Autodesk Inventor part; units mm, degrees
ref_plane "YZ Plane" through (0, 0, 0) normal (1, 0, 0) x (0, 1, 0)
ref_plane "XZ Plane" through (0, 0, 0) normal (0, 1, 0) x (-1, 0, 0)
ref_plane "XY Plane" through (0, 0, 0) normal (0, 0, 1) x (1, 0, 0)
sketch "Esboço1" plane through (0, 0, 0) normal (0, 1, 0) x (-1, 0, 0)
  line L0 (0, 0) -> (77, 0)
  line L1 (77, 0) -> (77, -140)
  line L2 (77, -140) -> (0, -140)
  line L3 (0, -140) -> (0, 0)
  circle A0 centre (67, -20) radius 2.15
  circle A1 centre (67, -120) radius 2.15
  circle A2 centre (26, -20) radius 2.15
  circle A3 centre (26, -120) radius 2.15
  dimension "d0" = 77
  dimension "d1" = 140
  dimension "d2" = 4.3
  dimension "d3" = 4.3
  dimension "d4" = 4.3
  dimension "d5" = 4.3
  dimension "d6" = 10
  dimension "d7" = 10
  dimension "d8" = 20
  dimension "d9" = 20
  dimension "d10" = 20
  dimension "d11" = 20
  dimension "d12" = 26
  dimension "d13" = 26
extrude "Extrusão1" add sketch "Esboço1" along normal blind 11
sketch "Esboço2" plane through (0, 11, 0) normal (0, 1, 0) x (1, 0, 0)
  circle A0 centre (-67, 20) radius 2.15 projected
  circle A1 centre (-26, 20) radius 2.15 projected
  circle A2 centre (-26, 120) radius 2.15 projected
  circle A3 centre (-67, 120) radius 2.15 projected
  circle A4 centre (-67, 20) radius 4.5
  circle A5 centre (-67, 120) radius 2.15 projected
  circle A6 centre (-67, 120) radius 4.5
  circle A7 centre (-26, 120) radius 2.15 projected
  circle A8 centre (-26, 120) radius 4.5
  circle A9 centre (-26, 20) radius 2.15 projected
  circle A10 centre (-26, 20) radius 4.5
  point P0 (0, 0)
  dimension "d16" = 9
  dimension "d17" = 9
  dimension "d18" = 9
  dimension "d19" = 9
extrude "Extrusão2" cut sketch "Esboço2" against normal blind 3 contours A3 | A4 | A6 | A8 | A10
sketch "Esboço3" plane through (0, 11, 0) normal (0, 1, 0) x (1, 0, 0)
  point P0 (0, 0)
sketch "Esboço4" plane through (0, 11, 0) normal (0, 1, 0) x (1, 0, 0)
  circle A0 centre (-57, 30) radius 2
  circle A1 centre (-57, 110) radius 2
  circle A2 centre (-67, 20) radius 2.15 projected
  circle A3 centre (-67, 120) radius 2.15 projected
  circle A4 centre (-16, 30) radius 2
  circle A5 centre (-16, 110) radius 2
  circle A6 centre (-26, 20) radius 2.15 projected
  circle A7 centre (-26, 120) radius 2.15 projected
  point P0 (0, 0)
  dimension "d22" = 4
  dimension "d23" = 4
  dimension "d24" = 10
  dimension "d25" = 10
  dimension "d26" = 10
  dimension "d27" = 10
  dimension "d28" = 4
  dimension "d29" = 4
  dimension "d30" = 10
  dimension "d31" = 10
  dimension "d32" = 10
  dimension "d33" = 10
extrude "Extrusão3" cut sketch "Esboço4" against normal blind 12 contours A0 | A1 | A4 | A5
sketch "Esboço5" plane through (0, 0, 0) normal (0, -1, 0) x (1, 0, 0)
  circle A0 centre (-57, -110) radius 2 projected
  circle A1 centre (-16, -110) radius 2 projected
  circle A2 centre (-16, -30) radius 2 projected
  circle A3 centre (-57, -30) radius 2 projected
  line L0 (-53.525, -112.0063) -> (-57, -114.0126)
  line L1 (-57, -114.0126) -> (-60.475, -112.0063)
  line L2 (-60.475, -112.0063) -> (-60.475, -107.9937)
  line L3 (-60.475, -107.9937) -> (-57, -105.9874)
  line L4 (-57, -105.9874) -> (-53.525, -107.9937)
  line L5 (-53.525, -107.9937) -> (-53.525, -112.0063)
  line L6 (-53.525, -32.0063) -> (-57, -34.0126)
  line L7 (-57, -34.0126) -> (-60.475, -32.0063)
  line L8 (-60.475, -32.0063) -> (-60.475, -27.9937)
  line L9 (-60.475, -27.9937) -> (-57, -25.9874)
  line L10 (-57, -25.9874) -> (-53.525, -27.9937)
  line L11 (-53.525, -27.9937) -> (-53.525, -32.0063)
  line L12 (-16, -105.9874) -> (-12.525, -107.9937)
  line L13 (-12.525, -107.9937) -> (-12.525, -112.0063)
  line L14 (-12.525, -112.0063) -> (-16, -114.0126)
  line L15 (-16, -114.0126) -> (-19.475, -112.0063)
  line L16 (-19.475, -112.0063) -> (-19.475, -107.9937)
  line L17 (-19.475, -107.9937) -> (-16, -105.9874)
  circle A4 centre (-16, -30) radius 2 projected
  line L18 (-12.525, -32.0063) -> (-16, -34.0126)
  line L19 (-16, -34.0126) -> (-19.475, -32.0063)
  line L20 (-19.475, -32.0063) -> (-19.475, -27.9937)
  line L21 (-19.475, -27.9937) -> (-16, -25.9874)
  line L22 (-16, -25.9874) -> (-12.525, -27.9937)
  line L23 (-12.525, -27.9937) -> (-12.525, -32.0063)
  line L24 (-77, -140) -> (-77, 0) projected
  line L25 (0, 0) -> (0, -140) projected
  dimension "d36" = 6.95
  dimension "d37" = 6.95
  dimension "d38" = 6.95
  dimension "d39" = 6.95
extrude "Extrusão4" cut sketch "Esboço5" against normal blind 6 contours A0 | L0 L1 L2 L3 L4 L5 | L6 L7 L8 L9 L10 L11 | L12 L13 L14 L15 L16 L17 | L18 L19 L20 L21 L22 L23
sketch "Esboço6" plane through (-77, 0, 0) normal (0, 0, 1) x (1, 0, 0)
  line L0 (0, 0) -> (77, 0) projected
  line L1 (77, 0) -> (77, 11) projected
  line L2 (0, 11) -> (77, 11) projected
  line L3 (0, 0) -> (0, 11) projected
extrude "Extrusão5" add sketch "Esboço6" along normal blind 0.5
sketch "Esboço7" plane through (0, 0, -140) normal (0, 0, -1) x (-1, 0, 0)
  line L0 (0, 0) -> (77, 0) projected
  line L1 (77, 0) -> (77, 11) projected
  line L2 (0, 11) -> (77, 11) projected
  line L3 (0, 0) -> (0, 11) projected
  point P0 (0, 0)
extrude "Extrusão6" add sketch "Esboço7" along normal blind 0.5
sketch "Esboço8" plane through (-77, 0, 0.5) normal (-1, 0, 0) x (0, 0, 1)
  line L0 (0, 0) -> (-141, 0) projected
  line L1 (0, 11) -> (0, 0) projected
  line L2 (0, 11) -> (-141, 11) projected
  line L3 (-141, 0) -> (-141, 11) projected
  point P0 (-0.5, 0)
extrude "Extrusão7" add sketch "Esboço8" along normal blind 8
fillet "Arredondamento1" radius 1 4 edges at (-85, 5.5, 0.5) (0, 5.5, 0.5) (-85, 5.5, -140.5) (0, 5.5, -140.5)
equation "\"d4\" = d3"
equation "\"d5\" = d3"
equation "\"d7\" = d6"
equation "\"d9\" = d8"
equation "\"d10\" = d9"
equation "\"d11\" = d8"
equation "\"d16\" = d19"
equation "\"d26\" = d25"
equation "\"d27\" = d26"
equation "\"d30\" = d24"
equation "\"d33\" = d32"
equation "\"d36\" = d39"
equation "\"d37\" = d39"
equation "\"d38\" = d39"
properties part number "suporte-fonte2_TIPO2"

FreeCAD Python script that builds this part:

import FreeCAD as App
import Part
import Sketcher
from FreeCAD import Vector
Q = App.Units.Quantity


def edges_at(feature, points):
    """Names of the edges that pass closest to the given points."""
    edges = feature.Shape.Edges
    near = lambda p: min(range(len(edges)), key=lambda i: edges[i].distToShape(Part.Vertex(*p))[0])
    return sorted({f"Edge{near(p) + 1}" for p in points})

doc = App.newDocument("Part")
body = doc.addObject("PartDesign::Body", "Body")

sketch1 = body.newObject("Sketcher::SketchObject", "Sketch")
sketch1.AttachmentSupport = (doc.getObject("XZ_Plane"), [""])
sketch1.MapMode = "FlatFace"
sketch1.addGeometry([
    Part.LineSegment(Vector(-77, 0, 0), Vector(0, 0, 0)),
    Part.LineSegment(Vector(0, 0, 0), Vector(0, -140, 0)),
    Part.LineSegment(Vector(0, -140, 0), Vector(-77, -140, 0)),
    Part.LineSegment(Vector(-77, -140, 0), Vector(-77, 0, 0)),
    Part.Circle(Vector(-26, -120, 0), Vector(0, 0, 1), 2.15),
    Part.Circle(Vector(-67, -120, 0), Vector(0, 0, 1), 2.15),
    Part.Circle(Vector(-26, -20, 0), Vector(0, 0, 1), 2.15),
    Part.Circle(Vector(-67, -20, 0), Vector(0, 0, 1), 2.15),
], False)
sketch1.addConstraint([
    Sketcher.Constraint("Coincident", 0, 2, 1, 1),
    Sketcher.Constraint("Coincident", 1, 2, 2, 1),
    Sketcher.Constraint("Coincident", 2, 2, 3, 1),
    Sketcher.Constraint("Coincident", 3, 2, 0, 1),
    Sketcher.Constraint("Horizontal", 0),
    Sketcher.Constraint("Vertical", 1),
    Sketcher.Constraint("Horizontal", 2),
    Sketcher.Constraint("Vertical", 3),
    Sketcher.Constraint("Coincident", 0, 2, -1, 1),
    Sketcher.Constraint("Equal", 4, 5),
    Sketcher.Constraint("Equal", 5, 6),
    Sketcher.Constraint("Equal", 6, 7),
    Sketcher.Constraint("Horizontal", 4, 3, 5, 3),
    Sketcher.Constraint("Horizontal", 6, 3, 7, 3),
    Sketcher.Constraint("Vertical", 4, 3, 6, 3),
    Sketcher.Constraint("Vertical", 5, 3, 7, 3),
    Sketcher.Constraint("Diameter", 4, Q("4.3 mm")),
    Sketcher.Constraint("DistanceX", 0, 1, 0, 2, Q("77 mm")),
    Sketcher.Constraint("DistanceY", 1, 2, 1, 1, Q("140 mm")),
    Sketcher.Constraint("DistanceX", 4, 3, -1, 1, Q("26 mm")),
    Sketcher.Constraint("DistanceY", 6, 3, -1, 1, Q("20 mm")),
    Sketcher.Constraint("DistanceY", 1, 2, 4, 3, Q("20 mm")),
    Sketcher.Constraint("DistanceX", 2, 2, 5, 3, Q("10 mm")),
])
pad1 = body.newObject("PartDesign::Pad", "Pad")
pad1.Profile = sketch1
pad1.Length = 11
pad1.Reversed = True

sketch2 = body.newObject("Sketcher::SketchObject", "Sketch001")
sketch2.AttachmentSupport = (doc.getObject("XZ_Plane"), [""])
sketch2.MapMode = "FlatFace"
sketch2.AttachmentOffset = App.Placement(Vector(0, 0, -11), App.Rotation())
sketch2.addGeometry([
    Part.Circle(Vector(-67, -120, 0), Vector(0, 0, 1), 4.5),
    Part.Circle(Vector(-67, -20, 0), Vector(0, 0, 1), 4.5),
    Part.Circle(Vector(-67, -20, 0), Vector(0, 0, 1), 2.15),
    Part.Circle(Vector(-26, -120, 0), Vector(0, 0, 1), 4.5),
    Part.Circle(Vector(-26, -120, 0), Vector(0, 0, 1), 2.15),
    Part.Circle(Vector(-26, -20, 0), Vector(0, 0, 1), 4.5),
    Part.Circle(Vector(-26, -20, 0), Vector(0, 0, 1), 2.15),
], False)
sketch2.addConstraint([
    Sketcher.Constraint("Coincident", 2, 3, 1, 3),
    Sketcher.Constraint("Coincident", 4, 3, 3, 3),
    Sketcher.Constraint("Coincident", 6, 3, 5, 3),
    Sketcher.Constraint("Equal", 0, 1),
    Sketcher.Constraint("Equal", 1, 3),
    Sketcher.Constraint("Equal", 2, 4),
    Sketcher.Constraint("Equal", 3, 5),
    Sketcher.Constraint("Equal", 4, 6),
    Sketcher.Constraint("Horizontal", 0, 3, 3, 3),
    Sketcher.Constraint("Horizontal", 2, 3, 5, 3),
    Sketcher.Constraint("Vertical", 0, 3, 1, 3),
    Sketcher.Constraint("Vertical", 4, 3, 5, 3),
    Sketcher.Constraint("Diameter", 0, Q("9 mm")),
    Sketcher.Constraint("Diameter", 2, Q("4.3 mm")),
    Sketcher.Constraint("DistanceX", 0, 3, -1, 1, Q("67 mm")),
    Sketcher.Constraint("DistanceY", 0, 3, -1, 1, Q("120 mm")),
    Sketcher.Constraint("DistanceY", 1, 3, -1, 1, Q("20 mm")),
    Sketcher.Constraint("DistanceX", 3, 3, -1, 1, Q("26 mm")),
])
pocket1 = body.newObject("PartDesign::Pocket", "Pocket")
pocket1.Profile = sketch2
pocket1.Length = 3
pocket1.Reversed = True

sketch3 = body.newObject("Sketcher::SketchObject", "Sketch002")
sketch3.AttachmentSupport = (doc.getObject("XZ_Plane"), [""])
sketch3.MapMode = "FlatFace"
sketch3.AttachmentOffset = App.Placement(Vector(0, 0, -11), App.Rotation())
sketch3.addGeometry([
    Part.Circle(Vector(-57, -30, 0), Vector(0, 0, 1), 2),
    Part.Circle(Vector(-57, -110, 0), Vector(0, 0, 1), 2),
    Part.Circle(Vector(-16, -30, 0), Vector(0, 0, 1), 2),
    Part.Circle(Vector(-16, -110, 0), Vector(0, 0, 1), 2),
], False)
sketch3.addConstraint([
    Sketcher.Constraint("Equal", 0, 1),
    Sketcher.Constraint("Equal", 1, 2),
    Sketcher.Constraint("Equal", 2, 3),
    Sketcher.Constraint("Horizontal", 0, 3, 2, 3),
    Sketcher.Constraint("Horizontal", 1, 3, 3, 3),
    Sketcher.Constraint("Vertical", 0, 3, 1, 3),
    Sketcher.Constraint("Vertical", 2, 3, 3, 3),
    Sketcher.Constraint("Diameter", 0, Q("4 mm")),
    Sketcher.Constraint("DistanceX", 0, 3, -1, 1, Q("57 mm")),
    Sketcher.Constraint("DistanceY", 0, 3, -1, 1, Q("30 mm")),
    Sketcher.Constraint("DistanceY", 1, 3, -1, 1, Q("110 mm")),
    Sketcher.Constraint("DistanceX", 2, 3, -1, 1, Q("16 mm")),
])
pocket2 = body.newObject("PartDesign::Pocket", "Pocket001")
pocket2.Profile = sketch3
pocket2.Length = 12
pocket2.Reversed = True

sketch4 = body.newObject("Sketcher::SketchObject", "Sketch003")
sketch4.AttachmentSupport = (doc.getObject("XZ_Plane"), [""])
sketch4.MapMode = "FlatFace"
sketch4.addGeometry([
    Part.LineSegment(Vector(-57, -114.0126, 0), Vector(-53.525, -112.0063, 0)),
    Part.LineSegment(Vector(-53.525, -112.0063, 0), Vector(-53.525, -107.9937, 0)),
    Part.LineSegment(Vector(-53.525, -107.9937, 0), Vector(-57, -105.9874, 0)),
    Part.LineSegment(Vector(-57, -105.9874, 0), Vector(-60.475, -107.9937, 0)),
    Part.LineSegment(Vector(-60.475, -107.9937, 0), Vector(-60.475, -112.0063, 0)),
    Part.LineSegment(Vector(-60.475, -112.0063, 0), Vector(-57, -114.0126, 0)),
    Part.LineSegment(Vector(-57, -34.0126, 0), Vector(-53.525, -32.0063, 0)),
    Part.LineSegment(Vector(-53.525, -32.0063, 0), Vector(-53.525, -27.9937, 0)),
    Part.LineSegment(Vector(-53.525, -27.9937, 0), Vector(-57, -25.9874, 0)),
    Part.LineSegment(Vector(-57, -25.9874, 0), Vector(-60.475, -27.9937, 0)),
    Part.LineSegment(Vector(-60.475, -27.9937, 0), Vector(-60.475, -32.0063, 0)),
    Part.LineSegment(Vector(-60.475, -32.0063, 0), Vector(-57, -34.0126, 0)),
    Part.Circle(Vector(-57, -30, 0), Vector(0, 0, 1), 2),
    Part.LineSegment(Vector(-12.525, -107.9937, 0), Vector(-16, -105.9874, 0)),
    Part.LineSegment(Vector(-16, -105.9874, 0), Vector(-19.475, -107.9937, 0)),
    Part.LineSegment(Vector(-19.475, -107.9937, 0), Vector(-19.475, -112.0063, 0)),
    Part.LineSegment(Vector(-19.475, -112.0063, 0), Vector(-16, -114.0126, 0)),
    Part.LineSegment(Vector(-16, -114.0126, 0), Vector(-12.525, -112.0063, 0)),
    Part.LineSegment(Vector(-12.525, -112.0063, 0), Vector(-12.525, -107.9937, 0)),
    Part.Circle(Vector(-16, -110, 0), Vector(0, 0, 1), 2),
    Part.LineSegment(Vector(-16, -34.0126, 0), Vector(-12.525, -32.0063, 0)),
    Part.LineSegment(Vector(-12.525, -32.0063, 0), Vector(-12.525, -27.9937, 0)),
    Part.LineSegment(Vector(-12.525, -27.9937, 0), Vector(-16, -25.9874, 0)),
    Part.LineSegment(Vector(-16, -25.9874, 0), Vector(-19.475, -27.9937, 0)),
    Part.LineSegment(Vector(-19.475, -27.9937, 0), Vector(-19.475, -32.0063, 0)),
    Part.LineSegment(Vector(-19.475, -32.0063, 0), Vector(-16, -34.0126, 0)),
    Part.Circle(Vector(-16, -30, 0), Vector(0, 0, 1), 2),
], False)
sketch4.addConstraint([
    Sketcher.Constraint("Coincident", 0, 2, 1, 1),
    Sketcher.Constraint("Coincident", 1, 2, 2, 1),
    Sketcher.Constraint("Coincident", 2, 2, 3, 1),
    Sketcher.Constraint("Coincident", 3, 2, 4, 1),
    Sketcher.Constraint("Coincident", 4, 2, 5, 1),
    Sketcher.Constraint("Coincident", 5, 2, 0, 1),
    Sketcher.Constraint("Coincident", 6, 2, 7, 1),
    Sketcher.Constraint("Coincident", 7, 2, 8, 1),
    Sketcher.Constraint("Coincident", 8, 2, 9, 1),
    Sketcher.Constraint("Coincident", 9, 2, 10, 1),
    Sketcher.Constraint("Coincident", 10, 2, 11, 1),
    Sketcher.Constraint("Coincident", 11, 2, 6, 1),
    Sketcher.Constraint("Coincident", 13, 2, 14, 1),
    Sketcher.Constraint("Coincident", 14, 2, 15, 1),
    Sketcher.Constraint("Coincident", 15, 2, 16, 1),
    Sketcher.Constraint("Coincident", 16, 2, 17, 1),
    Sketcher.Constraint("Coincident", 17, 2, 18, 1),
    Sketcher.Constraint("Coincident", 18, 2, 13, 1),
    Sketcher.Constraint("Coincident", 20, 2, 21, 1),
    Sketcher.Constraint("Coincident", 21, 2, 22, 1),
    Sketcher.Constraint("Coincident", 22, 2, 23, 1),
    Sketcher.Constraint("Coincident", 23, 2, 24, 1),
    Sketcher.Constraint("Coincident", 24, 2, 25, 1),
    Sketcher.Constraint("Coincident", 25, 2, 20, 1),
    Sketcher.Constraint("Vertical", 1),
    Sketcher.Constraint("Vertical", 4),
    Sketcher.Constraint("Vertical", 7),
    Sketcher.Constraint("Vertical", 10),
    Sketcher.Constraint("Vertical", 15),
    Sketcher.Constraint("Vertical", 18),
    Sketcher.Constraint("Vertical", 21),
    Sketcher.Constraint("Vertical", 24),
    Sketcher.Constraint("Equal", 12, 19),
    Sketcher.Constraint("Equal", 19, 26),
    Sketcher.Constraint("Parallel", 0, 3),
    Sketcher.Constraint("Parallel", 2, 5),
    Sketcher.Constraint("Parallel", 3, 6),
    Sketcher.Constraint("Parallel", 5, 8),
    Sketcher.Constraint("Parallel", 6, 9),
    Sketcher.Constraint("Parallel", 8, 11),
    Sketcher.Constraint("Parallel", 11, 13),
    Sketcher.Constraint("Parallel", 9, 14),
    Sketcher.Constraint("Parallel", 13, 16),
    Sketcher.Constraint("Parallel", 14, 17),
    Sketcher.Constraint("Parallel", 17, 20),
    Sketcher.Constraint("Parallel", 16, 22),
    Sketcher.Constraint("Parallel", 20, 23),
    Sketcher.Constraint("Parallel", 22, 25),
    Sketcher.Constraint("Horizontal", 12, 3, 26, 3),
    Sketcher.Constraint("Horizontal", 1, 2, 3, 2),
    Sketcher.Constraint("Horizontal", 0, 2, 4, 2),
    Sketcher.Constraint("Horizontal", 7, 2, 9, 2),
    Sketcher.Constraint("Horizontal", 6, 2, 10, 2),
    Sketcher.Constraint("Horizontal", 2, 2, 13, 2),
    Sketcher.Constraint("Horizontal", 3, 2, 14, 2),
    Sketcher.Constraint("Horizontal", 4, 2, 15, 2),
    Sketcher.Constraint("Horizontal", 5, 2, 16, 2),
    Sketcher.Constraint("Horizontal", 15, 2, 17, 2),
    Sketcher.Constraint("Horizontal", 10, 2, 20, 2),
    Sketcher.Constraint("Horizontal", 9, 2, 21, 2),
    Sketcher.Constraint("Horizontal", 8, 2, 22, 2),
    Sketcher.Constraint("Horizontal", 21, 2, 23, 2),
    Sketcher.Constraint("Horizontal", 20, 2, 24, 2),
    Sketcher.Constraint("Vertical", 19, 3, 26, 3),
    Sketcher.Constraint("Vertical", 12, 3, 2, 2),
    Sketcher.Constraint("Vertical", 2, 2, 5, 2),
    Sketcher.Constraint("Vertical", 1, 2, 6, 2),
    Sketcher.Constraint("Vertical", 5, 2, 8, 2),
    Sketcher.Constraint("Vertical", 26, 3, 13, 2),
    Sketcher.Constraint("Vertical", 18, 2, 20, 2),
    Sketcher.Constraint("Equal", 4, 7),
    Sketcher.Constraint("Diameter", 12, Q("4 mm")),
    Sketcher.Constraint("Angle", 0, Q("30 deg")),
    Sketcher.Constraint("DistanceX", 3, 2, 1, 2, Q("6.95 mm")),
    Sketcher.Constraint("DistanceX", 12, 3, -1, 1, Q("57 mm")),
    Sketcher.Constraint("DistanceY", 12, 3, -1, 1, Q("30 mm")),
    Sketcher.Constraint("DistanceX", 19, 3, -1, 1, Q("16 mm")),
    Sketcher.Constraint("DistanceY", 19, 3, -1, 1, Q("110 mm")),
    Sketcher.Constraint("DistanceY", 1, 2, 7, 2, Q("80 mm")),
    Sketcher.Constraint("DistanceY", 1, 1, 1, 2, Q("4.0126 mm")),
    Sketcher.Constraint("DistanceY", 0, 2, -1, 1, Q("112.0063 mm")),
])
pocket3 = body.newObject("PartDesign::Pocket", "Pocket002")
pocket3.Profile = sketch4
pocket3.Length = 6

sketch5 = body.newObject("Sketcher::SketchObject", "Sketch004")
sketch5.AttachmentSupport = (doc.getObject("XY_Plane"), [""])
sketch5.MapMode = "FlatFace"
sketch5.addGeometry([
    Part.LineSegment(Vector(-77, 11, 0), Vector(-77, 0, 0)),
    Part.LineSegment(Vector(-77, 0, 0), Vector(0, 0, 0)),
    Part.LineSegment(Vector(0, 0, 0), Vector(0, 11, 0)),
    Part.LineSegment(Vector(0, 11, 0), Vector(-77, 11, 0)),
], False)
sketch5.addConstraint([
    Sketcher.Constraint("Coincident", 0, 2, 1, 1),
    Sketcher.Constraint("Coincident", 1, 2, 2, 1),
    Sketcher.Constraint("Coincident", 2, 2, 3, 1),
    Sketcher.Constraint("Coincident", 3, 2, 0, 1),
    Sketcher.Constraint("Vertical", 0),
    Sketcher.Constraint("Horizontal", 1),
    Sketcher.Constraint("Vertical", 2),
    Sketcher.Constraint("Horizontal", 3),
    Sketcher.Constraint("Coincident", 1, 2, -1, 1),
    Sketcher.Constraint("DistanceX", 1, 1, 1, 2, Q("77 mm")),
    Sketcher.Constraint("DistanceY", 0, 2, 0, 1, Q("11 mm")),
])
pad2 = body.newObject("PartDesign::Pad", "Pad001")
pad2.Profile = sketch5
pad2.Length = 0.5

sketch6 = body.newObject("Sketcher::SketchObject", "Sketch005")
sketch6.AttachmentSupport = (doc.getObject("XY_Plane"), [""])
sketch6.MapMode = "FlatFace"
sketch6.AttachmentOffset = App.Placement(Vector(0, 0, -140), App.Rotation())
sketch6.addGeometry([
    Part.LineSegment(Vector(0, 11, 0), Vector(0, 0, 0)),
    Part.LineSegment(Vector(0, 0, 0), Vector(-77, 0, 0)),
    Part.LineSegment(Vector(-77, 0, 0), Vector(-77, 11, 0)),
    Part.LineSegment(Vector(-77, 11, 0), Vector(0, 11, 0)),
], False)
sketch6.addConstraint([
    Sketcher.Constraint("Coincident", 0, 2, 1, 1),
    Sketcher.Constraint("Coincident", 1, 2, 2, 1),
    Sketcher.Constraint("Coincident", 2, 2, 3, 1),
    Sketcher.Constraint("Coincident", 3, 2, 0, 1),
    Sketcher.Constraint("Vertical", 0),
    Sketcher.Constraint("Horizontal", 1),
    Sketcher.Constraint("Vertical", 2),
    Sketcher.Constraint("Horizontal", 3),
    Sketcher.Constraint("Coincident", 0, 2, -1, 1),
    Sketcher.Constraint("DistanceX", 1, 2, 1, 1, Q("77 mm")),
    Sketcher.Constraint("DistanceY", 0, 2, 0, 1, Q("11 mm")),
])
pad3 = body.newObject("PartDesign::Pad", "Pad002")
pad3.Profile = sketch6
pad3.Length = 0.5
pad3.Reversed = True

sketch7 = body.newObject("Sketcher::SketchObject", "Sketch006")
sketch7.AttachmentSupport = (doc.getObject("YZ_Plane"), [""])
sketch7.MapMode = "FlatFace"
sketch7.AttachmentOffset = App.Placement(Vector(0, 0, -77), App.Rotation())
sketch7.addGeometry([
    Part.LineSegment(Vector(0, -140.5, 0), Vector(0, 0.5, 0)),
    Part.LineSegment(Vector(0, 0.5, 0), Vector(11, 0.5, 0)),
    Part.LineSegment(Vector(11, 0.5, 0), Vector(11, -140.5, 0)),
    Part.LineSegment(Vector(11, -140.5, 0), Vector(0, -140.5, 0)),
], False)
sketch7.addConstraint([
    Sketcher.Constraint("Coincident", 0, 2, 1, 1),
    Sketcher.Constraint("Coincident", 1, 2, 2, 1),
    Sketcher.Constraint("Coincident", 2, 2, 3, 1),
    Sketcher.Constraint("Coincident", 3, 2, 0, 1),
    Sketcher.Constraint("Vertical", 0),
    Sketcher.Constraint("Horizontal", 1),
    Sketcher.Constraint("Vertical", 2),
    Sketcher.Constraint("Horizontal", 3),
    Sketcher.Constraint("PointOnObject", 0, 2, -2),
    Sketcher.Constraint("DistanceX", 1, 1, 1, 2, Q("11 mm")),
    Sketcher.Constraint("DistanceY", 0, 1, 0, 2, Q("141 mm")),
    Sketcher.Constraint("DistanceY", -1, 1, 0, 2, Q("0.5 mm")),
])
pad4 = body.newObject("PartDesign::Pad", "Pad003")
pad4.Profile = sketch7
pad4.Length = 8
pad4.Reversed = True
doc.recompute()

fillet = body.newObject("PartDesign::Fillet", "Fillet")
fillet.Base = (pad4, edges_at(pad4, [
    (-85, 5.5, 0.5),
    (0, 5.5, 0.5),
    (-85, 5.5, -140.5),
    (0, 5.5, -140.5),
]))
fillet.Radius = 1

doc.recompute()
